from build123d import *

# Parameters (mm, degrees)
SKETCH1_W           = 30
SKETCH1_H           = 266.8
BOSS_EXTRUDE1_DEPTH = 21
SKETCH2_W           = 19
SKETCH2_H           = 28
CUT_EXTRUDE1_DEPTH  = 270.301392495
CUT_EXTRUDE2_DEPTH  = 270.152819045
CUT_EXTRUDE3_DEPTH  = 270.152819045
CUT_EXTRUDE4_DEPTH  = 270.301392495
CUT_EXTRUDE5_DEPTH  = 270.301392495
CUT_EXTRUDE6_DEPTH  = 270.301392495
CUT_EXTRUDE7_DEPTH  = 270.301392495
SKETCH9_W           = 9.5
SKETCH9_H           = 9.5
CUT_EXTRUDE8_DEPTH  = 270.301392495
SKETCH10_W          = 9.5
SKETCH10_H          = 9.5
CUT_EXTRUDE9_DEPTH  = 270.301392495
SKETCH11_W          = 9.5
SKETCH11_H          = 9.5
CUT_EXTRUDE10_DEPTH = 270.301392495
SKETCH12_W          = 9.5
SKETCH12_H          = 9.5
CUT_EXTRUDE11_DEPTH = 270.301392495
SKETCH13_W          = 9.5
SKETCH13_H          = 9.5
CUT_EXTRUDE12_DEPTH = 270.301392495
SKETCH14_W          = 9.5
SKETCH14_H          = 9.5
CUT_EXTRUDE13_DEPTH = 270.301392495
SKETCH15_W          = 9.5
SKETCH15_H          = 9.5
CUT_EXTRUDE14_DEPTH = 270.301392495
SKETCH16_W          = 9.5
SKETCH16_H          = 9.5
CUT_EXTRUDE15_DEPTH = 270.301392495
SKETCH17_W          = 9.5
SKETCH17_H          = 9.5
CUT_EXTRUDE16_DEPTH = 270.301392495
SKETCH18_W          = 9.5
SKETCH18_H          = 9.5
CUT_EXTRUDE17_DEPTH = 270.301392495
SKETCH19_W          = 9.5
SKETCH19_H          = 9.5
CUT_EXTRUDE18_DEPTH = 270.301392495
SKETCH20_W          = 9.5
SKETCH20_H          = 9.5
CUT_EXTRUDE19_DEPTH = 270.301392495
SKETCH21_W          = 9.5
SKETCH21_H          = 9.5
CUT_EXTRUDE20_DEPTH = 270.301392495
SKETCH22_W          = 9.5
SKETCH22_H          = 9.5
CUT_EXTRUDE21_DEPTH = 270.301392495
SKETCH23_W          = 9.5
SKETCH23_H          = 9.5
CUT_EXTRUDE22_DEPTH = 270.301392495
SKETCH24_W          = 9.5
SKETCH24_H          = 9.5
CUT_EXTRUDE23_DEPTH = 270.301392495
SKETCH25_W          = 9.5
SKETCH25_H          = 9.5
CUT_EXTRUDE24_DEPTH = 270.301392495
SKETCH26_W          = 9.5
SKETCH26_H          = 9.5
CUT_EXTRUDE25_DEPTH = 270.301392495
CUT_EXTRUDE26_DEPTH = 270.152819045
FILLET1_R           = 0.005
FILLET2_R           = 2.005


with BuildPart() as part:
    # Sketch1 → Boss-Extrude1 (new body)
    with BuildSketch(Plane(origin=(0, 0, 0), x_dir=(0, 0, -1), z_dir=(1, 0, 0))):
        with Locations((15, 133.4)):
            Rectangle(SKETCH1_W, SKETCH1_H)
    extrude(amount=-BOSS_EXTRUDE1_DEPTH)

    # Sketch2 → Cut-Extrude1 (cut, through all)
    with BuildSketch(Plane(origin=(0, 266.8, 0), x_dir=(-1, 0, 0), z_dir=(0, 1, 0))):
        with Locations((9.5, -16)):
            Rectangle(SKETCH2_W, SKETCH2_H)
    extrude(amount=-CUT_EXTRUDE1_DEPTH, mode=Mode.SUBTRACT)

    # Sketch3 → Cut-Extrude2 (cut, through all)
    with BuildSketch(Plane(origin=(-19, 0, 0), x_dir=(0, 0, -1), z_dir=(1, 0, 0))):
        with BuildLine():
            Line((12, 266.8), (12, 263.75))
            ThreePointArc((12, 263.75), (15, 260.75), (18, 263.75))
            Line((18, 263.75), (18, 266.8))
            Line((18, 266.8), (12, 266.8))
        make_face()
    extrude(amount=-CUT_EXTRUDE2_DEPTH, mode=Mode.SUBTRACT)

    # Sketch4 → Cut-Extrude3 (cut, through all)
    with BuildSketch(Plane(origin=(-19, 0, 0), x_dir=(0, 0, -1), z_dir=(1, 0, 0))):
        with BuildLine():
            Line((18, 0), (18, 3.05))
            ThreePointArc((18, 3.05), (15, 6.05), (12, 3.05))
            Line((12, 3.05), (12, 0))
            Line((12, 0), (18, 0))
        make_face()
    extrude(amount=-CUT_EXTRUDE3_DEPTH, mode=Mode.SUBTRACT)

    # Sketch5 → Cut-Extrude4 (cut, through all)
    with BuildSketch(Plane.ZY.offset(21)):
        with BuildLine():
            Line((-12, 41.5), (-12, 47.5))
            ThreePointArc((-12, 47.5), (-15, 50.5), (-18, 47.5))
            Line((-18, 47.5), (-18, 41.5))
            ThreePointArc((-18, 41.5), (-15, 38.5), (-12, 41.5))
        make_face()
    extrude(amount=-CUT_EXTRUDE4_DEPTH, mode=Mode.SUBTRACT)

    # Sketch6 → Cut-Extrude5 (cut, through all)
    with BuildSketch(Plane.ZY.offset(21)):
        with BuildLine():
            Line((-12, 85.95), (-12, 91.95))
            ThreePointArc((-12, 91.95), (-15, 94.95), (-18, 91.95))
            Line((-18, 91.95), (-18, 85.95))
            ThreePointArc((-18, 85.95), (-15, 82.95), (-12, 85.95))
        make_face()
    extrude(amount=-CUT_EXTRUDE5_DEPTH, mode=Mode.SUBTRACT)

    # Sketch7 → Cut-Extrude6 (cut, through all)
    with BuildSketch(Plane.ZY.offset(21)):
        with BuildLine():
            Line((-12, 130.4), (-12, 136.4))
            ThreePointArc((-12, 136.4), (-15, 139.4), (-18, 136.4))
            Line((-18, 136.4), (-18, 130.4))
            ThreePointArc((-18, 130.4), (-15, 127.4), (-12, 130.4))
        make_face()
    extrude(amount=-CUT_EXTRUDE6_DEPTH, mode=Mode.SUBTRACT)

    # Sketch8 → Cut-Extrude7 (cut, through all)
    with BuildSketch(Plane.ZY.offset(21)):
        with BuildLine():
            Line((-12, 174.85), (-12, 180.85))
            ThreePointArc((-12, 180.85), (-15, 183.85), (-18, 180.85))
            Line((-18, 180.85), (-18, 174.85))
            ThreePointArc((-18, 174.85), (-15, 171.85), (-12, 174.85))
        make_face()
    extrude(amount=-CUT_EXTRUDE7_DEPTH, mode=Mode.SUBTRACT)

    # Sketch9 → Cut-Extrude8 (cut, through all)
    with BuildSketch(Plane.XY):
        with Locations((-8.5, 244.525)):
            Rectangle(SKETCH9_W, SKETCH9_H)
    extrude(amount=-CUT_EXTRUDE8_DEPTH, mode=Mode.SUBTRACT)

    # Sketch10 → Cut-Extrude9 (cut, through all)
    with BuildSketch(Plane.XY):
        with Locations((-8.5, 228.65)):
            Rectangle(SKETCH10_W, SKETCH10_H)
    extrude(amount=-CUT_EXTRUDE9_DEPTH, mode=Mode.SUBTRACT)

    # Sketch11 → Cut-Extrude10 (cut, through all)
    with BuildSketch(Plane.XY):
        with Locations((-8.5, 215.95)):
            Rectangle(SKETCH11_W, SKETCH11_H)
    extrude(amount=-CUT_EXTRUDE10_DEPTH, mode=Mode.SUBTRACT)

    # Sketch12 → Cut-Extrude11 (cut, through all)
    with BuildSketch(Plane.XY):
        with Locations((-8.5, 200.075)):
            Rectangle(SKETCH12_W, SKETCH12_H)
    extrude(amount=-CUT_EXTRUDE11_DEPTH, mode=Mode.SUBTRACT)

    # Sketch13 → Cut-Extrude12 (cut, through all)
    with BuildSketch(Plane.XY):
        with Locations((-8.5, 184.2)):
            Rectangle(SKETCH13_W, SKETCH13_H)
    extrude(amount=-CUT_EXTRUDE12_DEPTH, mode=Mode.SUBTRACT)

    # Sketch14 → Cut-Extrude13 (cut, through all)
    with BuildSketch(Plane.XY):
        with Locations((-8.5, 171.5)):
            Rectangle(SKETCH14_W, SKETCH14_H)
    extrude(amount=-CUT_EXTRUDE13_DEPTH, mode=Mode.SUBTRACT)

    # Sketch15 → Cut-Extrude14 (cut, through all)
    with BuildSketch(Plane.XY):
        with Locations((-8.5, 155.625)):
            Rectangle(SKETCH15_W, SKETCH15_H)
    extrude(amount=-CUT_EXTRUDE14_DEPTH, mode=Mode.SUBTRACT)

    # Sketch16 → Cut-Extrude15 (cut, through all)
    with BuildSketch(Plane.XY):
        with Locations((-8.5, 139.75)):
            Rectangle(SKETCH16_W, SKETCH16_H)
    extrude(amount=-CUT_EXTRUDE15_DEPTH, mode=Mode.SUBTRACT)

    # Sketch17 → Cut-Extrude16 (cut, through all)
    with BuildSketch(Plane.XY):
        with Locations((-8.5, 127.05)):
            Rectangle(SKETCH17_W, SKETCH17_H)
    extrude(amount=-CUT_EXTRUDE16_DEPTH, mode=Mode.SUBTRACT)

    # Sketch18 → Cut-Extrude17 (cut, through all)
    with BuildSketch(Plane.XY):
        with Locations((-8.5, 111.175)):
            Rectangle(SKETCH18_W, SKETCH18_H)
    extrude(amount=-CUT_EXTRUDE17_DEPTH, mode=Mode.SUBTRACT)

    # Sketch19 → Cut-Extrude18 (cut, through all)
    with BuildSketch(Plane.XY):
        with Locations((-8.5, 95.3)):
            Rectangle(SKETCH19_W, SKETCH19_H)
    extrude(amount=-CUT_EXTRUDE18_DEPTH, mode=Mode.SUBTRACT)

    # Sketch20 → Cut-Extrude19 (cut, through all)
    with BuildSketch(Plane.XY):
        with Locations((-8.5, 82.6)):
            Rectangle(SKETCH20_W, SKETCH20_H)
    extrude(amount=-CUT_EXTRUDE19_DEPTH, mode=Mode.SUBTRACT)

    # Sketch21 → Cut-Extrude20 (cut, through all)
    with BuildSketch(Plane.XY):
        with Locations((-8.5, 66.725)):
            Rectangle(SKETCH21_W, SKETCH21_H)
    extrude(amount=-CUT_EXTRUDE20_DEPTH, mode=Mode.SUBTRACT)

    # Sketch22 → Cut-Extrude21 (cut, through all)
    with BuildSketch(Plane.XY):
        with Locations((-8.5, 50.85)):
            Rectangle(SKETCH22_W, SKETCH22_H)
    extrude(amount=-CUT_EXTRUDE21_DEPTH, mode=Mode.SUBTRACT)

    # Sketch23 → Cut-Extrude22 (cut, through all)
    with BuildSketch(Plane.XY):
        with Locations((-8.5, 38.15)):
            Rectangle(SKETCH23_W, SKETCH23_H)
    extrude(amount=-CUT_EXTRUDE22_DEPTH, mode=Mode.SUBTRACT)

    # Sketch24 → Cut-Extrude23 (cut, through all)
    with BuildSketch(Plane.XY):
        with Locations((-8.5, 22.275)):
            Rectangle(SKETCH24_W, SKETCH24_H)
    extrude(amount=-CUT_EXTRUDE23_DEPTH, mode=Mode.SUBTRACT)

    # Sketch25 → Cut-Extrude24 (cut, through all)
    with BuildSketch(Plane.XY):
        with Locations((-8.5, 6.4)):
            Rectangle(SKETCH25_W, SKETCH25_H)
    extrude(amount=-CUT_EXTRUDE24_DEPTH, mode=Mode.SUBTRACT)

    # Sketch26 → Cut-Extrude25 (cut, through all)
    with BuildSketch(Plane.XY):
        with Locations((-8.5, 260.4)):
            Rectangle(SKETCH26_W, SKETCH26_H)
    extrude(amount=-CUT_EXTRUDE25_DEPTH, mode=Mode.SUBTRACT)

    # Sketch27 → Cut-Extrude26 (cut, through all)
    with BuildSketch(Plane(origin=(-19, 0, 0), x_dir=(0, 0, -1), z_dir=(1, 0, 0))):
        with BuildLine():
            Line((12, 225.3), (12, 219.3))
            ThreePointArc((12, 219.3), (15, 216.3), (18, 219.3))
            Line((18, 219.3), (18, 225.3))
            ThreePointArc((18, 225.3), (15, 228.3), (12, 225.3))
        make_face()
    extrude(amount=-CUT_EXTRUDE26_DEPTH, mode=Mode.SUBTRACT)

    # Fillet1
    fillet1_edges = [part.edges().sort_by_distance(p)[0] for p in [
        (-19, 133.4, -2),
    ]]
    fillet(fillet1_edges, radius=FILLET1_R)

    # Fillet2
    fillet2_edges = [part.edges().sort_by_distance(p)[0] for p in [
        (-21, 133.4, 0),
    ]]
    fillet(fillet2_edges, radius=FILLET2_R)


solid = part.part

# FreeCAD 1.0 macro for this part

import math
import FreeCAD as App
import Part
import Sketcher
from FreeCAD import Vector


def edges_at(feature, points):
    """Names of the edges that pass closest to the given points."""
    edges = feature.Shape.Edges
    near = lambda p: min(range(len(edges)), key=lambda i: edges[i].distToShape(Part.Vertex(*p))[0])
    return sorted({f"Edge{near(p) + 1}" for p in points})

doc = App.newDocument("Part")
body = doc.addObject("PartDesign::Body", "Body")

sketch1 = body.newObject("Sketcher::SketchObject", "Sketch")
sketch1.AttachmentSupport = (doc.getObject("YZ_Plane"), [""])
sketch1.MapMode = "FlatFace"
sketch1.addGeometry([
    Part.LineSegment(Vector(267, 0, 0), Vector(0, 0, 0)),
    Part.LineSegment(Vector(0, 0, 0), Vector(0, -30, 0)),
    Part.LineSegment(Vector(0, -30, 0), Vector(267, -30, 0)),
    Part.LineSegment(Vector(267, -30, 0), Vector(267, 0, 0)),
], False)
sketch1.addConstraint([
    Sketcher.Constraint("Coincident", 0, 2, 1, 1),
    Sketcher.Constraint("Coincident", 1, 2, 2, 1),
    Sketcher.Constraint("Coincident", 2, 2, 3, 1),
    Sketcher.Constraint("Coincident", 3, 2, 0, 1),
    Sketcher.Constraint("Horizontal", 0),
    Sketcher.Constraint("Vertical", 1),
    Sketcher.Constraint("Horizontal", 2),
    Sketcher.Constraint("Vertical", 3),
    Sketcher.Constraint("Coincident", 0, 2, -1, 1),
    Sketcher.Constraint("DistanceY", 1, 2, 1, 1, 30.0),
    Sketcher.Constraint("DistanceX", 0, 2, 0, 1, 266.8),
])
pad1 = body.newObject("PartDesign::Pad", "Pad")
pad1.Profile = sketch1
pad1.Length = 21
pad1.Reversed = True

sketch2 = body.newObject("Sketcher::SketchObject", "Sketch001")
sketch2.AttachmentSupport = (doc.getObject("XZ_Plane"), [""])
sketch2.MapMode = "FlatFace"
sketch2.AttachmentOffset = App.Placement(Vector(0, 0, -266.8), App.Rotation())
sketch2.addGeometry([
    Part.LineSegment(Vector(0, -2, 0), Vector(0, -30, 0)),
    Part.LineSegment(Vector(0, -30, 0), Vector(-19, -30, 0)),
    Part.LineSegment(Vector(-19, -30, 0), Vector(-19, -2, 0)),
    Part.LineSegment(Vector(-19, -2, 0), Vector(0, -2, 0)),
], False)
sketch2.addConstraint([
    Sketcher.Constraint("Coincident", 0, 2, 1, 1),
    Sketcher.Constraint("Coincident", 1, 2, 2, 1),
    Sketcher.Constraint("Coincident", 2, 2, 3, 1),
    Sketcher.Constraint("Coincident", 3, 2, 0, 1),
    Sketcher.Constraint("Vertical", 0),
    Sketcher.Constraint("Horizontal", 1),
    Sketcher.Constraint("Vertical", 2),
    Sketcher.Constraint("Horizontal", 3),
    Sketcher.Constraint("PointOnObject", 0, 2, -2),
    Sketcher.Constraint("DistanceX", 1, 2, 1, 1, 19.0),
    Sketcher.Constraint("DistanceY", 0, 2, 0, 1, 28.0),
    Sketcher.Constraint("DistanceY", 0, 2, -1, 1, 30.0),
])
pocket1 = body.newObject("PartDesign::Pocket", "Pocket")
pocket1.Profile = sketch2
pocket1.Type = "ThroughAll"
pocket1.Reversed = True

sketch3 = body.newObject("Sketcher::SketchObject", "Sketch002")
sketch3.AttachmentSupport = (doc.getObject("YZ_Plane"), [""])
sketch3.MapMode = "FlatFace"
sketch3.AttachmentOffset = App.Placement(Vector(0, 0, -19), App.Rotation())
sketch3.addGeometry([
    Part.LineSegment(Vector(266.8, -12, 0), Vector(263.8, -12, 0)),
    Part.ArcOfCircle(Part.Circle(Vector(263.8, -15, 0), Vector(0, 0, 1), 3), math.radians(90), math.radians(270)),
    Part.LineSegment(Vector(263.8, -18, 0), Vector(266.8, -18, 0)),
    Part.LineSegment(Vector(266.8, -18, 0), Vector(266.8, -12, 0)),
], False)
sketch3.addConstraint([
    Sketcher.Constraint("Tangent", 0, 2, 1, 1),
    Sketcher.Constraint("Tangent", 1, 2, 2, 1),
    Sketcher.Constraint("Coincident", 2, 2, 3, 1),
    Sketcher.Constraint("Coincident", 3, 2, 0, 1),
    Sketcher.Constraint("Horizontal", 0),
    Sketcher.Constraint("Horizontal", 2),
    Sketcher.Constraint("Vertical", 3),
    Sketcher.Constraint("Radius", 1, 3.0),
    Sketcher.Constraint("DistanceY", 1, 3, -1, 1, 15.0),
    Sketcher.Constraint("DistanceX", 0, 2, 0, 1, 3.05),
    Sketcher.Constraint("DistanceX", -1, 1, 2, 2, 266.8),
])
pocket2 = body.newObject("PartDesign::Pocket", "Pocket001")
pocket2.Profile = sketch3
pocket2.Type = "ThroughAll"

sketch4 = body.newObject("Sketcher::SketchObject", "Sketch003")
sketch4.AttachmentSupport = (doc.getObject("YZ_Plane"), [""])
sketch4.MapMode = "FlatFace"
sketch4.AttachmentOffset = App.Placement(Vector(0, 0, -19), App.Rotation())
sketch4.addGeometry([
    Part.LineSegment(Vector(0, -18, 0), Vector(3, -18, 0)),
    Part.ArcOfCircle(Part.Circle(Vector(3, -15, 0), Vector(0, 0, 1), 3), math.radians(-90), math.radians(90)),
    Part.LineSegment(Vector(3, -12, 0), Vector(0, -12, 0)),
    Part.LineSegment(Vector(0, -12, 0), Vector(0, -18, 0)),
], False)
sketch4.addConstraint([
    Sketcher.Constraint("Tangent", 0, 2, 1, 1),
    Sketcher.Constraint("Tangent", 1, 2, 2, 1),
    Sketcher.Constraint("Coincident", 2, 2, 3, 1),
    Sketcher.Constraint("Coincident", 3, 2, 0, 1),
    Sketcher.Constraint("Horizontal", 0),
    Sketcher.Constraint("Horizontal", 2),
    Sketcher.Constraint("Vertical", 3),
    Sketcher.Constraint("PointOnObject", 2, 2, -2),
    Sketcher.Constraint("Radius", 1, 3.0),
    Sketcher.Constraint("DistanceY", 1, 3, -1, 1, 15.0),
    Sketcher.Constraint("DistanceX", 0, 1, 0, 2, 3.05),
])
pocket3 = body.newObject("PartDesign::Pocket", "Pocket002")
pocket3.Profile = sketch4
pocket3.Type = "ThroughAll"

sketch5 = body.newObject("Sketcher::SketchObject", "Sketch004")
sketch5.AttachmentSupport = (doc.getObject("YZ_Plane"), [""])
sketch5.MapMode = "FlatFace"
sketch5.AttachmentOffset = App.Placement(Vector(0, 0, -21), App.Rotation())
sketch5.addGeometry([
    Part.LineSegment(Vector(41.5, -12, 0), Vector(47.5, -12, 0)),
    Part.ArcOfCircle(Part.Circle(Vector(47.5, -15, 0), Vector(0, 0, 1), 3), math.radians(-90), math.radians(90)),
    Part.LineSegment(Vector(47.5, -18, 0), Vector(41.5, -18, 0)),
    Part.ArcOfCircle(Part.Circle(Vector(41.5, -15, 0), Vector(0, 0, 1), 3), math.radians(90), math.radians(270)),
], False)
sketch5.addConstraint([
    Sketcher.Constraint("Tangent", 0, 2, 1, 2),
    Sketcher.Constraint("Tangent", 1, 1, 2, 1),
    Sketcher.Constraint("Tangent", 2, 2, 3, 2),
    Sketcher.Constraint("Tangent", 3, 1, 0, 1),
    Sketcher.Constraint("Horizontal", 0),
    Sketcher.Constraint("Horizontal", 2),
    Sketcher.Constraint("Radius", 1, 3.0),
    Sketcher.Constraint("DistanceX", 0, 1, 0, 2, 6.0),
    Sketcher.Constraint("DistanceY", 1, 3, -1, 1, 15.0),
    Sketcher.Constraint("DistanceX", -1, 1, 1, 3, 47.5),
])
pocket4 = body.newObject("PartDesign::Pocket", "Pocket003")
pocket4.Profile = sketch5
pocket4.Type = "ThroughAll"
pocket4.Reversed = True

sketch6 = body.newObject("Sketcher::SketchObject", "Sketch005")
sketch6.AttachmentSupport = (doc.getObject("YZ_Plane"), [""])
sketch6.MapMode = "FlatFace"
sketch6.AttachmentOffset = App.Placement(Vector(0, 0, -21), App.Rotation())
sketch6.addGeometry([
    Part.LineSegment(Vector(86, -12, 0), Vector(92, -12, 0)),
    Part.ArcOfCircle(Part.Circle(Vector(92, -15, 0), Vector(0, 0, 1), 3), math.radians(-90), math.radians(90)),
    Part.LineSegment(Vector(92, -18, 0), Vector(86, -18, 0)),
    Part.ArcOfCircle(Part.Circle(Vector(86, -15, 0), Vector(0, 0, 1), 3), math.radians(90), math.radians(270)),
], False)
sketch6.addConstraint([
    Sketcher.Constraint("Tangent", 0, 2, 1, 2),
    Sketcher.Constraint("Tangent", 1, 1, 2, 1),
    Sketcher.Constraint("Tangent", 2, 2, 3, 2),
    Sketcher.Constraint("Tangent", 3, 1, 0, 1),
    Sketcher.Constraint("Horizontal", 0),
    Sketcher.Constraint("Horizontal", 2),
    Sketcher.Constraint("Radius", 1, 3.0),
    Sketcher.Constraint("DistanceX", 0, 1, 0, 2, 6.0),
    Sketcher.Constraint("DistanceY", 1, 3, -1, 1, 15.0),
    Sketcher.Constraint("DistanceX", -1, 1, 1, 3, 91.95),
])
pocket5 = body.newObject("PartDesign::Pocket", "Pocket004")
pocket5.Profile = sketch6
pocket5.Type = "ThroughAll"
pocket5.Reversed = True

sketch7 = body.newObject("Sketcher::SketchObject", "Sketch006")
sketch7.AttachmentSupport = (doc.getObject("YZ_Plane"), [""])
sketch7.MapMode = "FlatFace"
sketch7.AttachmentOffset = App.Placement(Vector(0, 0, -21), App.Rotation())
sketch7.addGeometry([
    Part.LineSegment(Vector(130.4, -12, 0), Vector(136.4, -12, 0)),
    Part.ArcOfCircle(Part.Circle(Vector(136.4, -15, 0), Vector(0, 0, 1), 3), math.radians(-90), math.radians(90)),
    Part.LineSegment(Vector(136.4, -18, 0), Vector(130.4, -18, 0)),
    Part.ArcOfCircle(Part.Circle(Vector(130.4, -15, 0), Vector(0, 0, 1), 3), math.radians(90), math.radians(270)),
], False)
sketch7.addConstraint([
    Sketcher.Constraint("Tangent", 0, 2, 1, 2),
    Sketcher.Constraint("Tangent", 1, 1, 2, 1),
    Sketcher.Constraint("Tangent", 2, 2, 3, 2),
    Sketcher.Constraint("Tangent", 3, 1, 0, 1),
    Sketcher.Constraint("Horizontal", 0),
    Sketcher.Constraint("Horizontal", 2),
    Sketcher.Constraint("Radius", 1, 3.0),
    Sketcher.Constraint("DistanceX", 0, 1, 0, 2, 6.0),
    Sketcher.Constraint("DistanceY", 1, 3, -1, 1, 15.0),
    Sketcher.Constraint("DistanceX", -1, 1, 1, 3, 136.4),
])
pocket6 = body.newObject("PartDesign::Pocket", "Pocket005")
pocket6.Profile = sketch7
pocket6.Type = "ThroughAll"
pocket6.Reversed = True

sketch8 = body.newObject("Sketcher::SketchObject", "Sketch007")
sketch8.AttachmentSupport = (doc.getObject("YZ_Plane"), [""])
sketch8.MapMode = "FlatFace"
sketch8.AttachmentOffset = App.Placement(Vector(0, 0, -21), App.Rotation())
sketch8.addGeometry([
    Part.LineSegment(Vector(174.8, -12, 0), Vector(180.8, -12, 0)),
    Part.ArcOfCircle(Part.Circle(Vector(180.8, -15, 0), Vector(0, 0, 1), 3), math.radians(-90), math.radians(90)),
    Part.LineSegment(Vector(180.8, -18, 0), Vector(174.8, -18, 0)),
    Part.ArcOfCircle(Part.Circle(Vector(174.8, -15, 0), Vector(0, 0, 1), 3), math.radians(90), math.radians(270)),
], False)
sketch8.addConstraint([
    Sketcher.Constraint("Tangent", 0, 2, 1, 2),
    Sketcher.Constraint("Tangent", 1, 1, 2, 1),
    Sketcher.Constraint("Tangent", 2, 2, 3, 2),
    Sketcher.Constraint("Tangent", 3, 1, 0, 1),
    Sketcher.Constraint("Horizontal", 0),
    Sketcher.Constraint("Horizontal", 2),
    Sketcher.Constraint("Radius", 1, 3.0),
    Sketcher.Constraint("DistanceX", 0, 1, 0, 2, 6.0),
    Sketcher.Constraint("DistanceY", 1, 3, -1, 1, 15.0),
    Sketcher.Constraint("DistanceX", -1, 1, 1, 3, 180.85),
])
pocket7 = body.newObject("PartDesign::Pocket", "Pocket006")
pocket7.Profile = sketch8
pocket7.Type = "ThroughAll"
pocket7.Reversed = True

sketch9 = body.newObject("Sketcher::SketchObject", "Sketch008")
sketch9.AttachmentSupport = (doc.getObject("XY_Plane"), [""])
sketch9.MapMode = "FlatFace"
sketch9.addGeometry([
    Part.LineSegment(Vector(-13, 249, 0), Vector(-13, 240, 0)),
    Part.LineSegment(Vector(-13, 240, 0), Vector(-4, 240, 0)),
    Part.LineSegment(Vector(-4, 240, 0), Vector(-4, 249, 0)),
    Part.LineSegment(Vector(-4, 249, 0), Vector(-13, 249, 0)),
], False)
sketch9.addConstraint([
    Sketcher.Constraint("Coincident", 0, 2, 1, 1),
    Sketcher.Constraint("Coincident", 1, 2, 2, 1),
    Sketcher.Constraint("Coincident", 2, 2, 3, 1),
    Sketcher.Constraint("Coincident", 3, 2, 0, 1),
    Sketcher.Constraint("Vertical", 0),
    Sketcher.Constraint("Horizontal", 1),
    Sketcher.Constraint("Vertical", 2),
    Sketcher.Constraint("Horizontal", 3),
    Sketcher.Constraint("Equal", 3, 0),
    Sketcher.Constraint("DistanceX", 1, 1, 1, 2, 9.5),
    Sketcher.Constraint("DistanceX", 0, 2, -1, 1, 13.25),
    Sketcher.Constraint("DistanceY", -1, 1, 0, 2, 239.775),
])
pocket8 = body.newObject("PartDesign::Pocket", "Pocket007")
pocket8.Profile = sketch9
pocket8.Type = "ThroughAll"

sketch10 = body.newObject("Sketcher::SketchObject", "Sketch009")
sketch10.AttachmentSupport = (doc.getObject("XY_Plane"), [""])
sketch10.MapMode = "FlatFace"
sketch10.addGeometry([
    Part.LineSegment(Vector(-13, 233, 0), Vector(-13, 224, 0)),
    Part.LineSegment(Vector(-13, 224, 0), Vector(-4, 224, 0)),
    Part.LineSegment(Vector(-4, 224, 0), Vector(-4, 233, 0)),
    Part.LineSegment(Vector(-4, 233, 0), Vector(-13, 233, 0)),
], False)
sketch10.addConstraint([
    Sketcher.Constraint("Coincident", 0, 2, 1, 1),
    Sketcher.Constraint("Coincident", 1, 2, 2, 1),
    Sketcher.Constraint("Coincident", 2, 2, 3, 1),
    Sketcher.Constraint("Coincident", 3, 2, 0, 1),
    Sketcher.Constraint("Vertical", 0),
    Sketcher.Constraint("Horizontal", 1),
    Sketcher.Constraint("Vertical", 2),
    Sketcher.Constraint("Horizontal", 3),
    Sketcher.Constraint("Equal", 3, 0),
    Sketcher.Constraint("DistanceX", 1, 1, 1, 2, 9.5),
    Sketcher.Constraint("DistanceY", -1, 1, 0, 2, 223.9),
    Sketcher.Constraint("DistanceX", 0, 2, -1, 1, 13.25),
])
pocket9 = body.newObject("PartDesign::Pocket", "Pocket008")
pocket9.Profile = sketch10
pocket9.Type = "ThroughAll"

sketch11 = body.newObject("Sketcher::SketchObject", "Sketch010")
sketch11.AttachmentSupport = (doc.getObject("XY_Plane"), [""])
sketch11.MapMode = "FlatFace"
sketch11.addGeometry([
    Part.LineSegment(Vector(-13, 221, 0), Vector(-13, 211, 0)),
    Part.LineSegment(Vector(-13, 211, 0), Vector(-4, 211, 0)),
    Part.LineSegment(Vector(-4, 211, 0), Vector(-4, 221, 0)),
    Part.LineSegment(Vector(-4, 221, 0), Vector(-13, 221, 0)),
], False)
sketch11.addConstraint([
    Sketcher.Constraint("Coincident", 0, 2, 1, 1),
    Sketcher.Constraint("Coincident", 1, 2, 2, 1),
    Sketcher.Constraint("Coincident", 2, 2, 3, 1),
    Sketcher.Constraint("Coincident", 3, 2, 0, 1),
    Sketcher.Constraint("Vertical", 0),
    Sketcher.Constraint("Horizontal", 1),
    Sketcher.Constraint("Vertical", 2),
    Sketcher.Constraint("Horizontal", 3),
    Sketcher.Constraint("Equal", 3, 0),
    Sketcher.Constraint("DistanceX", 1, 1, 1, 2, 9.5),
    Sketcher.Constraint("DistanceY", -1, 1, 0, 2, 211.2),
    Sketcher.Constraint("DistanceX", 0, 2, -1, 1, 13.25),
])
pocket10 = body.newObject("PartDesign::Pocket", "Pocket009")
pocket10.Profile = sketch11
pocket10.Type = "ThroughAll"

sketch12 = body.newObject("Sketcher::SketchObject", "Sketch011")
sketch12.AttachmentSupport = (doc.getObject("XY_Plane"), [""])
sketch12.MapMode = "FlatFace"
sketch12.addGeometry([
    Part.LineSegment(Vector(-13, 205, 0), Vector(-13, 195, 0)),
    Part.LineSegment(Vector(-13, 195, 0), Vector(-4, 195, 0)),
    Part.LineSegment(Vector(-4, 195, 0), Vector(-4, 205, 0)),
    Part.LineSegment(Vector(-4, 205, 0), Vector(-13, 205, 0)),
], False)
sketch12.addConstraint([
    Sketcher.Constraint("Coincident", 0, 2, 1, 1),
    Sketcher.Constraint("Coincident", 1, 2, 2, 1),
    Sketcher.Constraint("Coincident", 2, 2, 3, 1),
    Sketcher.Constraint("Coincident", 3, 2, 0, 1),
    Sketcher.Constraint("Vertical", 0),
    Sketcher.Constraint("Horizontal", 1),
    Sketcher.Constraint("Vertical", 2),
    Sketcher.Constraint("Horizontal", 3),
    Sketcher.Constraint("Equal", 3, 0),
    Sketcher.Constraint("DistanceX", 1, 1, 1, 2, 9.5),
    Sketcher.Constraint("DistanceX", 0, 2, -1, 1, 13.25),
    Sketcher.Constraint("DistanceY", -1, 1, 0, 2, 195.325),
])
pocket11 = body.newObject("PartDesign::Pocket", "Pocket010")
pocket11.Profile = sketch12
pocket11.Type = "ThroughAll"

sketch13 = body.newObject("Sketcher::SketchObject", "Sketch012")
sketch13.AttachmentSupport = (doc.getObject("XY_Plane"), [""])
sketch13.MapMode = "FlatFace"
sketch13.addGeometry([
    Part.LineSegment(Vector(-13, 189, 0), Vector(-13, 179, 0)),
    Part.LineSegment(Vector(-13, 179, 0), Vector(-4, 179, 0)),
    Part.LineSegment(Vector(-4, 179, 0), Vector(-4, 189, 0)),
    Part.LineSegment(Vector(-4, 189, 0), Vector(-13, 189, 0)),
], False)
sketch13.addConstraint([
    Sketcher.Constraint("Coincident", 0, 2, 1, 1),
    Sketcher.Constraint("Coincident", 1, 2, 2, 1),
    Sketcher.Constraint("Coincident", 2, 2, 3, 1),
    Sketcher.Constraint("Coincident", 3, 2, 0, 1),
    Sketcher.Constraint("Vertical", 0),
    Sketcher.Constraint("Horizontal", 1),
    Sketcher.Constraint("Vertical", 2),
    Sketcher.Constraint("Horizontal", 3),
    Sketcher.Constraint("Equal", 3, 0),
    Sketcher.Constraint("DistanceX", 1, 1, 1, 2, 9.5),
    Sketcher.Constraint("DistanceX", 0, 2, -1, 1, 13.25),
    Sketcher.Constraint("DistanceY", -1, 1, 0, 2, 179.45),
])
pocket12 = body.newObject("PartDesign::Pocket", "Pocket011")
pocket12.Profile = sketch13
pocket12.Type = "ThroughAll"

sketch14 = body.newObject("Sketcher::SketchObject", "Sketch013")
sketch14.AttachmentSupport = (doc.getObject("XY_Plane"), [""])
sketch14.MapMode = "FlatFace"
sketch14.addGeometry([
    Part.LineSegment(Vector(-13, 176, 0), Vector(-13, 167, 0)),
    Part.LineSegment(Vector(-13, 167, 0), Vector(-4, 167, 0)),
    Part.LineSegment(Vector(-4, 167, 0), Vector(-4, 176, 0)),
    Part.LineSegment(Vector(-4, 176, 0), Vector(-13, 176, 0)),
], False)
sketch14.addConstraint([
    Sketcher.Constraint("Coincident", 0, 2, 1, 1),
    Sketcher.Constraint("Coincident", 1, 2, 2, 1),
    Sketcher.Constraint("Coincident", 2, 2, 3, 1),
    Sketcher.Constraint("Coincident", 3, 2, 0, 1),
    Sketcher.Constraint("Vertical", 0),
    Sketcher.Constraint("Horizontal", 1),
    Sketcher.Constraint("Vertical", 2),
    Sketcher.Constraint("Horizontal", 3),
    Sketcher.Constraint("Equal", 3, 0),
    Sketcher.Constraint("DistanceX", 1, 1, 1, 2, 9.5),
    Sketcher.Constraint("DistanceX", 0, 2, -1, 1, 13.25),
    Sketcher.Constraint("DistanceY", -1, 1, 0, 2, 166.75),
])
pocket13 = body.newObject("PartDesign::Pocket", "Pocket012")
pocket13.Profile = sketch14
pocket13.Type = "ThroughAll"

sketch15 = body.newObject("Sketcher::SketchObject", "Sketch014")
sketch15.AttachmentSupport = (doc.getObject("XY_Plane"), [""])
sketch15.MapMode = "FlatFace"
sketch15.addGeometry([
    Part.LineSegment(Vector(-13, 160, 0), Vector(-13, 151, 0)),
    Part.LineSegment(Vector(-13, 151, 0), Vector(-4, 151, 0)),
    Part.LineSegment(Vector(-4, 151, 0), Vector(-4, 160, 0)),
    Part.LineSegment(Vector(-4, 160, 0), Vector(-13, 160, 0)),
], False)
sketch15.addConstraint([
    Sketcher.Constraint("Coincident", 0, 2, 1, 1),
    Sketcher.Constraint("Coincident", 1, 2, 2, 1),
    Sketcher.Constraint("Coincident", 2, 2, 3, 1),
    Sketcher.Constraint("Coincident", 3, 2, 0, 1),
    Sketcher.Constraint("Vertical", 0),
    Sketcher.Constraint("Horizontal", 1),
    Sketcher.Constraint("Vertical", 2),
    Sketcher.Constraint("Horizontal", 3),
    Sketcher.Constraint("Equal", 3, 0),
    Sketcher.Constraint("DistanceX", 1, 1, 1, 2, 9.5),
    Sketcher.Constraint("DistanceX", 0, 2, -1, 1, 13.25),
    Sketcher.Constraint("DistanceY", -1, 1, 0, 2, 150.875),
])
pocket14 = body.newObject("PartDesign::Pocket", "Pocket013")
pocket14.Profile = sketch15
pocket14.Type = "ThroughAll"

sketch16 = body.newObject("Sketcher::SketchObject", "Sketch015")
sketch16.AttachmentSupport = (doc.getObject("XY_Plane"), [""])
sketch16.MapMode = "FlatFace"
sketch16.addGeometry([
    Part.LineSegment(Vector(-13, 144, 0), Vector(-13, 135, 0)),
    Part.LineSegment(Vector(-13, 135, 0), Vector(-4, 135, 0)),
    Part.LineSegment(Vector(-4, 135, 0), Vector(-4, 144, 0)),
    Part.LineSegment(Vector(-4, 144, 0), Vector(-13, 144, 0)),
], False)
sketch16.addConstraint([
    Sketcher.Constraint("Coincident", 0, 2, 1, 1),
    Sketcher.Constraint("Coincident", 1, 2, 2, 1),
    Sketcher.Constraint("Coincident", 2, 2, 3, 1),
    Sketcher.Constraint("Coincident", 3, 2, 0, 1),
    Sketcher.Constraint("Vertical", 0),
    Sketcher.Constraint("Horizontal", 1),
    Sketcher.Constraint("Vertical", 2),
    Sketcher.Constraint("Horizontal", 3),
    Sketcher.Constraint("Equal", 3, 0),
    Sketcher.Constraint("DistanceX", 1, 1, 1, 2, 9.5),
    Sketcher.Constraint("DistanceY", -1, 1, 0, 2, 135.0),
    Sketcher.Constraint("DistanceX", 0, 2, -1, 1, 13.25),
])
pocket15 = body.newObject("PartDesign::Pocket", "Pocket014")
pocket15.Profile = sketch16
pocket15.Type = "ThroughAll"

sketch17 = body.newObject("Sketcher::SketchObject", "Sketch016")
sketch17.AttachmentSupport = (doc.getObject("XY_Plane"), [""])
sketch17.MapMode = "FlatFace"
sketch17.addGeometry([
    Part.LineSegment(Vector(-13, 132, 0), Vector(-13, 122, 0)),
    Part.LineSegment(Vector(-13, 122, 0), Vector(-4, 122, 0)),
    Part.LineSegment(Vector(-4, 122, 0), Vector(-4, 132, 0)),
    Part.LineSegment(Vector(-4, 132, 0), Vector(-13, 132, 0)),
], False)
sketch17.addConstraint([
    Sketcher.Constraint("Coincident", 0, 2, 1, 1),
    Sketcher.Constraint("Coincident", 1, 2, 2, 1),
    Sketcher.Constraint("Coincident", 2, 2, 3, 1),
    Sketcher.Constraint("Coincident", 3, 2, 0, 1),
    Sketcher.Constraint("Vertical", 0),
    Sketcher.Constraint("Horizontal", 1),
    Sketcher.Constraint("Vertical", 2),
    Sketcher.Constraint("Horizontal", 3),
    Sketcher.Constraint("Equal", 3, 0),
    Sketcher.Constraint("DistanceX", 1, 1, 1, 2, 9.5),
    Sketcher.Constraint("DistanceY", -1, 1, 0, 2, 122.3),
    Sketcher.Constraint("DistanceX", 0, 2, -1, 1, 13.25),
])
pocket16 = body.newObject("PartDesign::Pocket", "Pocket015")
pocket16.Profile = sketch17
pocket16.Type = "ThroughAll"

sketch18 = body.newObject("Sketcher::SketchObject", "Sketch017")
sketch18.AttachmentSupport = (doc.getObject("XY_Plane"), [""])
sketch18.MapMode = "FlatFace"
sketch18.addGeometry([
    Part.LineSegment(Vector(-13, 116, 0), Vector(-13, 106, 0)),
    Part.LineSegment(Vector(-13, 106, 0), Vector(-4, 106, 0)),
    Part.LineSegment(Vector(-4, 106, 0), Vector(-4, 116, 0)),
    Part.LineSegment(Vector(-4, 116, 0), Vector(-13, 116, 0)),
], False)
sketch18.addConstraint([
    Sketcher.Constraint("Coincident", 0, 2, 1, 1),
    Sketcher.Constraint("Coincident", 1, 2, 2, 1),
    Sketcher.Constraint("Coincident", 2, 2, 3, 1),
    Sketcher.Constraint("Coincident", 3, 2, 0, 1),
    Sketcher.Constraint("Vertical", 0),
    Sketcher.Constraint("Horizontal", 1),
    Sketcher.Constraint("Vertical", 2),
    Sketcher.Constraint("Horizontal", 3),
    Sketcher.Constraint("Equal", 3, 0),
    Sketcher.Constraint("DistanceX", 1, 1, 1, 2, 9.5),
    Sketcher.Constraint("DistanceX", 0, 2, -1, 1, 13.25),
    Sketcher.Constraint("DistanceY", -1, 1, 0, 2, 106.425),
])
pocket17 = body.newObject("PartDesign::Pocket", "Pocket016")
pocket17.Profile = sketch18
pocket17.Type = "ThroughAll"

sketch19 = body.newObject("Sketcher::SketchObject", "Sketch018")
sketch19.AttachmentSupport = (doc.getObject("XY_Plane"), [""])
sketch19.MapMode = "FlatFace"
sketch19.addGeometry([
    Part.LineSegment(Vector(-13, 100, 0), Vector(-13, 91, 0)),
    Part.LineSegment(Vector(-13, 91, 0), Vector(-4, 91, 0)),
    Part.LineSegment(Vector(-4, 91, 0), Vector(-4, 100, 0)),
    Part.LineSegment(Vector(-4, 100, 0), Vector(-13, 100, 0)),
], False)
sketch19.addConstraint([
    Sketcher.Constraint("Coincident", 0, 2, 1, 1),
    Sketcher.Constraint("Coincident", 1, 2, 2, 1),
    Sketcher.Constraint("Coincident", 2, 2, 3, 1),
    Sketcher.Constraint("Coincident", 3, 2, 0, 1),
    Sketcher.Constraint("Vertical", 0),
    Sketcher.Constraint("Horizontal", 1),
    Sketcher.Constraint("Vertical", 2),
    Sketcher.Constraint("Horizontal", 3),
    Sketcher.Constraint("Equal", 3, 0),
    Sketcher.Constraint("DistanceX", 1, 1, 1, 2, 9.5),
    Sketcher.Constraint("DistanceX", 0, 2, -1, 1, 13.25),
    Sketcher.Constraint("DistanceY", -1, 1, 0, 2, 90.55),
])
pocket18 = body.newObject("PartDesign::Pocket", "Pocket017")
pocket18.Profile = sketch19
pocket18.Type = "ThroughAll"

sketch20 = body.newObject("Sketcher::SketchObject", "Sketch019")
sketch20.AttachmentSupport = (doc.getObject("XY_Plane"), [""])
sketch20.MapMode = "FlatFace"
sketch20.addGeometry([
    Part.LineSegment(Vector(-13, 87, 0), Vector(-13, 78, 0)),
    Part.LineSegment(Vector(-13, 78, 0), Vector(-4, 78, 0)),
    Part.LineSegment(Vector(-4, 78, 0), Vector(-4, 87, 0)),
    Part.LineSegment(Vector(-4, 87, 0), Vector(-13, 87, 0)),
], False)
sketch20.addConstraint([
    Sketcher.Constraint("Coincident", 0, 2, 1, 1),
    Sketcher.Constraint("Coincident", 1, 2, 2, 1),
    Sketcher.Constraint("Coincident", 2, 2, 3, 1),
    Sketcher.Constraint("Coincident", 3, 2, 0, 1),
    Sketcher.Constraint("Vertical", 0),
    Sketcher.Constraint("Horizontal", 1),
    Sketcher.Constraint("Vertical", 2),
    Sketcher.Constraint("Horizontal", 3),
    Sketcher.Constraint("Equal", 3, 0),
    Sketcher.Constraint("DistanceX", 1, 1, 1, 2, 9.5),
    Sketcher.Constraint("DistanceX", 0, 2, -1, 1, 13.25),
    Sketcher.Constraint("DistanceY", -1, 1, 0, 2, 77.85),
])
pocket19 = body.newObject("PartDesign::Pocket", "Pocket018")
pocket19.Profile = sketch20
pocket19.Type = "ThroughAll"

sketch21 = body.newObject("Sketcher::SketchObject", "Sketch020")
sketch21.AttachmentSupport = (doc.getObject("XY_Plane"), [""])
sketch21.MapMode = "FlatFace"
sketch21.addGeometry([
    Part.LineSegment(Vector(-13, 71, 0), Vector(-13, 62, 0)),
    Part.LineSegment(Vector(-13, 62, 0), Vector(-4, 62, 0)),
    Part.LineSegment(Vector(-4, 62, 0), Vector(-4, 71, 0)),
    Part.LineSegment(Vector(-4, 71, 0), Vector(-13, 71, 0)),
], False)
sketch21.addConstraint([
    Sketcher.Constraint("Coincident", 0, 2, 1, 1),
    Sketcher.Constraint("Coincident", 1, 2, 2, 1),
    Sketcher.Constraint("Coincident", 2, 2, 3, 1),
    Sketcher.Constraint("Coincident", 3, 2, 0, 1),
    Sketcher.Constraint("Vertical", 0),
    Sketcher.Constraint("Horizontal", 1),
    Sketcher.Constraint("Vertical", 2),
    Sketcher.Constraint("Horizontal", 3),
    Sketcher.Constraint("Equal", 3, 0),
    Sketcher.Constraint("DistanceX", 1, 1, 1, 2, 9.5),
    Sketcher.Constraint("DistanceX", 0, 2, -1, 1, 13.25),
    Sketcher.Constraint("DistanceY", -1, 1, 0, 2, 61.975),
])
pocket20 = body.newObject("PartDesign::Pocket", "Pocket019")
pocket20.Profile = sketch21
pocket20.Type = "ThroughAll"

sketch22 = body.newObject("Sketcher::SketchObject", "Sketch021")
sketch22.AttachmentSupport = (doc.getObject("XY_Plane"), [""])
sketch22.MapMode = "FlatFace"
sketch22.addGeometry([
    Part.LineSegment(Vector(-13, 56, 0), Vector(-13, 46, 0)),
    Part.LineSegment(Vector(-13, 46, 0), Vector(-4, 46, 0)),
    Part.LineSegment(Vector(-4, 46, 0), Vector(-4, 56, 0)),
    Part.LineSegment(Vector(-4, 56, 0), Vector(-13, 56, 0)),
], False)
sketch22.addConstraint([
    Sketcher.Constraint("Coincident", 0, 2, 1, 1),
    Sketcher.Constraint("Coincident", 1, 2, 2, 1),
    Sketcher.Constraint("Coincident", 2, 2, 3, 1),
    Sketcher.Constraint("Coincident", 3, 2, 0, 1),
    Sketcher.Constraint("Vertical", 0),
    Sketcher.Constraint("Horizontal", 1),
    Sketcher.Constraint("Vertical", 2),
    Sketcher.Constraint("Horizontal", 3),
    Sketcher.Constraint("Equal", 3, 0),
    Sketcher.Constraint("DistanceX", 1, 1, 1, 2, 9.5),
    Sketcher.Constraint("DistanceY", -1, 1, 0, 2, 46.1),
    Sketcher.Constraint("DistanceX", 0, 2, -1, 1, 13.25),
])
pocket21 = body.newObject("PartDesign::Pocket", "Pocket020")
pocket21.Profile = sketch22
pocket21.Type = "ThroughAll"

sketch23 = body.newObject("Sketcher::SketchObject", "Sketch022")
sketch23.AttachmentSupport = (doc.getObject("XY_Plane"), [""])
sketch23.MapMode = "FlatFace"
sketch23.addGeometry([
    Part.LineSegment(Vector(-13, 43, 0), Vector(-13, 33, 0)),
    Part.LineSegment(Vector(-13, 33, 0), Vector(-4, 33, 0)),
    Part.LineSegment(Vector(-4, 33, 0), Vector(-4, 43, 0)),
    Part.LineSegment(Vector(-4, 43, 0), Vector(-13, 43, 0)),
], False)
sketch23.addConstraint([
    Sketcher.Constraint("Coincident", 0, 2, 1, 1),
    Sketcher.Constraint("Coincident", 1, 2, 2, 1),
    Sketcher.Constraint("Coincident", 2, 2, 3, 1),
    Sketcher.Constraint("Coincident", 3, 2, 0, 1),
    Sketcher.Constraint("Vertical", 0),
    Sketcher.Constraint("Horizontal", 1),
    Sketcher.Constraint("Vertical", 2),
    Sketcher.Constraint("Horizontal", 3),
    Sketcher.Constraint("Equal", 3, 0),
    Sketcher.Constraint("DistanceX", 1, 1, 1, 2, 9.5),
    Sketcher.Constraint("DistanceY", -1, 1, 0, 2, 33.4),
    Sketcher.Constraint("DistanceX", 0, 2, -1, 1, 13.25),
])
pocket22 = body.newObject("PartDesign::Pocket", "Pocket021")
pocket22.Profile = sketch23
pocket22.Type = "ThroughAll"

sketch24 = body.newObject("Sketcher::SketchObject", "Sketch023")
sketch24.AttachmentSupport = (doc.getObject("XY_Plane"), [""])
sketch24.MapMode = "FlatFace"
sketch24.addGeometry([
    Part.LineSegment(Vector(-13, 27, 0), Vector(-13, 18, 0)),
    Part.LineSegment(Vector(-13, 18, 0), Vector(-4, 18, 0)),
    Part.LineSegment(Vector(-4, 18, 0), Vector(-4, 27, 0)),
    Part.LineSegment(Vector(-4, 27, 0), Vector(-13, 27, 0)),
], False)
sketch24.addConstraint([
    Sketcher.Constraint("Coincident", 0, 2, 1, 1),
    Sketcher.Constraint("Coincident", 1, 2, 2, 1),
    Sketcher.Constraint("Coincident", 2, 2, 3, 1),
    Sketcher.Constraint("Coincident", 3, 2, 0, 1),
    Sketcher.Constraint("Vertical", 0),
    Sketcher.Constraint("Horizontal", 1),
    Sketcher.Constraint("Vertical", 2),
    Sketcher.Constraint("Horizontal", 3),
    Sketcher.Constraint("Equal", 3, 0),
    Sketcher.Constraint("DistanceX", 1, 1, 1, 2, 9.5),
    Sketcher.Constraint("DistanceX", 0, 2, -1, 1, 13.25),
    Sketcher.Constraint("DistanceY", -1, 1, 0, 2, 17.525),
])
pocket23 = body.newObject("PartDesign::Pocket", "Pocket022")
pocket23.Profile = sketch24
pocket23.Type = "ThroughAll"

sketch25 = body.newObject("Sketcher::SketchObject", "Sketch024")
sketch25.AttachmentSupport = (doc.getObject("XY_Plane"), [""])
sketch25.MapMode = "FlatFace"
sketch25.addGeometry([
    Part.LineSegment(Vector(-13, 11, 0), Vector(-13, 2, 0)),
    Part.LineSegment(Vector(-13, 2, 0), Vector(-4, 2, 0)),
    Part.LineSegment(Vector(-4, 2, 0), Vector(-4, 11, 0)),
    Part.LineSegment(Vector(-4, 11, 0), Vector(-13, 11, 0)),
], False)
sketch25.addConstraint([
    Sketcher.Constraint("Coincident", 0, 2, 1, 1),
    Sketcher.Constraint("Coincident", 1, 2, 2, 1),
    Sketcher.Constraint("Coincident", 2, 2, 3, 1),
    Sketcher.Constraint("Coincident", 3, 2, 0, 1),
    Sketcher.Constraint("Vertical", 0),
    Sketcher.Constraint("Horizontal", 1),
    Sketcher.Constraint("Vertical", 2),
    Sketcher.Constraint("Horizontal", 3),
    Sketcher.Constraint("Equal", 3, 0),
    Sketcher.Constraint("DistanceX", 1, 1, 1, 2, 9.5),
    Sketcher.Constraint("DistanceX", 0, 2, -1, 1, 13.25),
    Sketcher.Constraint("DistanceY", -1, 1, 0, 2, 1.65),
])
pocket24 = body.newObject("PartDesign::Pocket", "Pocket023")
pocket24.Profile = sketch25
pocket24.Type = "ThroughAll"

sketch26 = body.newObject("Sketcher::SketchObject", "Sketch025")
sketch26.AttachmentSupport = (doc.getObject("XY_Plane"), [""])
sketch26.MapMode = "FlatFace"
sketch26.addGeometry([
    Part.LineSegment(Vector(-13, 265, 0), Vector(-13, 256, 0)),
    Part.LineSegment(Vector(-13, 256, 0), Vector(-4, 256, 0)),
    Part.LineSegment(Vector(-4, 256, 0), Vector(-4, 265, 0)),
    Part.LineSegment(Vector(-4, 265, 0), Vector(-13, 265, 0)),
], False)
sketch26.addConstraint([
    Sketcher.Constraint("Coincident", 0, 2, 1, 1),
    Sketcher.Constraint("Coincident", 1, 2, 2, 1),
    Sketcher.Constraint("Coincident", 2, 2, 3, 1),
    Sketcher.Constraint("Coincident", 3, 2, 0, 1),
    Sketcher.Constraint("Vertical", 0),
    Sketcher.Constraint("Horizontal", 1),
    Sketcher.Constraint("Vertical", 2),
    Sketcher.Constraint("Horizontal", 3),
    Sketcher.Constraint("Equal", 3, 0),
    Sketcher.Constraint("DistanceX", 1, 1, 1, 2, 9.5),
    Sketcher.Constraint("DistanceX", 0, 2, -1, 1, 13.25),
    Sketcher.Constraint("DistanceY", -1, 1, 0, 2, 255.65),
])
pocket25 = body.newObject("PartDesign::Pocket", "Pocket024")
pocket25.Profile = sketch26
pocket25.Type = "ThroughAll"

sketch27 = body.newObject("Sketcher::SketchObject", "Sketch026")
sketch27.AttachmentSupport = (doc.getObject("YZ_Plane"), [""])
sketch27.MapMode = "FlatFace"
sketch27.AttachmentOffset = App.Placement(Vector(0, 0, -19), App.Rotation())
sketch27.addGeometry([
    Part.LineSegment(Vector(225.3, -12, 0), Vector(219.3, -12, 0)),
    Part.ArcOfCircle(Part.Circle(Vector(219.3, -15, 0), Vector(0, 0, 1), 3), math.radians(90), math.radians(270)),
    Part.LineSegment(Vector(219.3, -18, 0), Vector(225.3, -18, 0)),
    Part.ArcOfCircle(Part.Circle(Vector(225.3, -15, 0), Vector(0, 0, 1), 3), math.radians(-90), math.radians(90)),
], False)
sketch27.addConstraint([
    Sketcher.Constraint("Tangent", 0, 2, 1, 1),
    Sketcher.Constraint("Tangent", 1, 2, 2, 1),
    Sketcher.Constraint("Tangent", 2, 2, 3, 1),
    Sketcher.Constraint("Tangent", 3, 2, 0, 1),
    Sketcher.Constraint("Horizontal", 0),
    Sketcher.Constraint("Horizontal", 2),
    Sketcher.Constraint("Radius", 1, 3.0),
    Sketcher.Constraint("DistanceX", 0, 2, 0, 1, 6.0),
    Sketcher.Constraint("DistanceY", 1, 3, -1, 1, 15.0),
    Sketcher.Constraint("DistanceX", -1, 1, 1, 3, 219.3),
])
pocket26 = body.newObject("PartDesign::Pocket", "Pocket025")
pocket26.Profile = sketch27
pocket26.Type = "ThroughAll"
doc.recompute()

fillet = body.newObject("PartDesign::Fillet", "Fillet")
fillet.Base = (pocket26, edges_at(pocket26, [(-19, 133.4, -2)]))
fillet.Radius = 0.005
doc.recompute()

fillet2 = body.newObject("PartDesign::Fillet", "Fillet001")
fillet2.Base = (fillet, edges_at(fillet, [(-21, 133.4, 0)]))
fillet2.Radius = 2.005

doc.recompute()
